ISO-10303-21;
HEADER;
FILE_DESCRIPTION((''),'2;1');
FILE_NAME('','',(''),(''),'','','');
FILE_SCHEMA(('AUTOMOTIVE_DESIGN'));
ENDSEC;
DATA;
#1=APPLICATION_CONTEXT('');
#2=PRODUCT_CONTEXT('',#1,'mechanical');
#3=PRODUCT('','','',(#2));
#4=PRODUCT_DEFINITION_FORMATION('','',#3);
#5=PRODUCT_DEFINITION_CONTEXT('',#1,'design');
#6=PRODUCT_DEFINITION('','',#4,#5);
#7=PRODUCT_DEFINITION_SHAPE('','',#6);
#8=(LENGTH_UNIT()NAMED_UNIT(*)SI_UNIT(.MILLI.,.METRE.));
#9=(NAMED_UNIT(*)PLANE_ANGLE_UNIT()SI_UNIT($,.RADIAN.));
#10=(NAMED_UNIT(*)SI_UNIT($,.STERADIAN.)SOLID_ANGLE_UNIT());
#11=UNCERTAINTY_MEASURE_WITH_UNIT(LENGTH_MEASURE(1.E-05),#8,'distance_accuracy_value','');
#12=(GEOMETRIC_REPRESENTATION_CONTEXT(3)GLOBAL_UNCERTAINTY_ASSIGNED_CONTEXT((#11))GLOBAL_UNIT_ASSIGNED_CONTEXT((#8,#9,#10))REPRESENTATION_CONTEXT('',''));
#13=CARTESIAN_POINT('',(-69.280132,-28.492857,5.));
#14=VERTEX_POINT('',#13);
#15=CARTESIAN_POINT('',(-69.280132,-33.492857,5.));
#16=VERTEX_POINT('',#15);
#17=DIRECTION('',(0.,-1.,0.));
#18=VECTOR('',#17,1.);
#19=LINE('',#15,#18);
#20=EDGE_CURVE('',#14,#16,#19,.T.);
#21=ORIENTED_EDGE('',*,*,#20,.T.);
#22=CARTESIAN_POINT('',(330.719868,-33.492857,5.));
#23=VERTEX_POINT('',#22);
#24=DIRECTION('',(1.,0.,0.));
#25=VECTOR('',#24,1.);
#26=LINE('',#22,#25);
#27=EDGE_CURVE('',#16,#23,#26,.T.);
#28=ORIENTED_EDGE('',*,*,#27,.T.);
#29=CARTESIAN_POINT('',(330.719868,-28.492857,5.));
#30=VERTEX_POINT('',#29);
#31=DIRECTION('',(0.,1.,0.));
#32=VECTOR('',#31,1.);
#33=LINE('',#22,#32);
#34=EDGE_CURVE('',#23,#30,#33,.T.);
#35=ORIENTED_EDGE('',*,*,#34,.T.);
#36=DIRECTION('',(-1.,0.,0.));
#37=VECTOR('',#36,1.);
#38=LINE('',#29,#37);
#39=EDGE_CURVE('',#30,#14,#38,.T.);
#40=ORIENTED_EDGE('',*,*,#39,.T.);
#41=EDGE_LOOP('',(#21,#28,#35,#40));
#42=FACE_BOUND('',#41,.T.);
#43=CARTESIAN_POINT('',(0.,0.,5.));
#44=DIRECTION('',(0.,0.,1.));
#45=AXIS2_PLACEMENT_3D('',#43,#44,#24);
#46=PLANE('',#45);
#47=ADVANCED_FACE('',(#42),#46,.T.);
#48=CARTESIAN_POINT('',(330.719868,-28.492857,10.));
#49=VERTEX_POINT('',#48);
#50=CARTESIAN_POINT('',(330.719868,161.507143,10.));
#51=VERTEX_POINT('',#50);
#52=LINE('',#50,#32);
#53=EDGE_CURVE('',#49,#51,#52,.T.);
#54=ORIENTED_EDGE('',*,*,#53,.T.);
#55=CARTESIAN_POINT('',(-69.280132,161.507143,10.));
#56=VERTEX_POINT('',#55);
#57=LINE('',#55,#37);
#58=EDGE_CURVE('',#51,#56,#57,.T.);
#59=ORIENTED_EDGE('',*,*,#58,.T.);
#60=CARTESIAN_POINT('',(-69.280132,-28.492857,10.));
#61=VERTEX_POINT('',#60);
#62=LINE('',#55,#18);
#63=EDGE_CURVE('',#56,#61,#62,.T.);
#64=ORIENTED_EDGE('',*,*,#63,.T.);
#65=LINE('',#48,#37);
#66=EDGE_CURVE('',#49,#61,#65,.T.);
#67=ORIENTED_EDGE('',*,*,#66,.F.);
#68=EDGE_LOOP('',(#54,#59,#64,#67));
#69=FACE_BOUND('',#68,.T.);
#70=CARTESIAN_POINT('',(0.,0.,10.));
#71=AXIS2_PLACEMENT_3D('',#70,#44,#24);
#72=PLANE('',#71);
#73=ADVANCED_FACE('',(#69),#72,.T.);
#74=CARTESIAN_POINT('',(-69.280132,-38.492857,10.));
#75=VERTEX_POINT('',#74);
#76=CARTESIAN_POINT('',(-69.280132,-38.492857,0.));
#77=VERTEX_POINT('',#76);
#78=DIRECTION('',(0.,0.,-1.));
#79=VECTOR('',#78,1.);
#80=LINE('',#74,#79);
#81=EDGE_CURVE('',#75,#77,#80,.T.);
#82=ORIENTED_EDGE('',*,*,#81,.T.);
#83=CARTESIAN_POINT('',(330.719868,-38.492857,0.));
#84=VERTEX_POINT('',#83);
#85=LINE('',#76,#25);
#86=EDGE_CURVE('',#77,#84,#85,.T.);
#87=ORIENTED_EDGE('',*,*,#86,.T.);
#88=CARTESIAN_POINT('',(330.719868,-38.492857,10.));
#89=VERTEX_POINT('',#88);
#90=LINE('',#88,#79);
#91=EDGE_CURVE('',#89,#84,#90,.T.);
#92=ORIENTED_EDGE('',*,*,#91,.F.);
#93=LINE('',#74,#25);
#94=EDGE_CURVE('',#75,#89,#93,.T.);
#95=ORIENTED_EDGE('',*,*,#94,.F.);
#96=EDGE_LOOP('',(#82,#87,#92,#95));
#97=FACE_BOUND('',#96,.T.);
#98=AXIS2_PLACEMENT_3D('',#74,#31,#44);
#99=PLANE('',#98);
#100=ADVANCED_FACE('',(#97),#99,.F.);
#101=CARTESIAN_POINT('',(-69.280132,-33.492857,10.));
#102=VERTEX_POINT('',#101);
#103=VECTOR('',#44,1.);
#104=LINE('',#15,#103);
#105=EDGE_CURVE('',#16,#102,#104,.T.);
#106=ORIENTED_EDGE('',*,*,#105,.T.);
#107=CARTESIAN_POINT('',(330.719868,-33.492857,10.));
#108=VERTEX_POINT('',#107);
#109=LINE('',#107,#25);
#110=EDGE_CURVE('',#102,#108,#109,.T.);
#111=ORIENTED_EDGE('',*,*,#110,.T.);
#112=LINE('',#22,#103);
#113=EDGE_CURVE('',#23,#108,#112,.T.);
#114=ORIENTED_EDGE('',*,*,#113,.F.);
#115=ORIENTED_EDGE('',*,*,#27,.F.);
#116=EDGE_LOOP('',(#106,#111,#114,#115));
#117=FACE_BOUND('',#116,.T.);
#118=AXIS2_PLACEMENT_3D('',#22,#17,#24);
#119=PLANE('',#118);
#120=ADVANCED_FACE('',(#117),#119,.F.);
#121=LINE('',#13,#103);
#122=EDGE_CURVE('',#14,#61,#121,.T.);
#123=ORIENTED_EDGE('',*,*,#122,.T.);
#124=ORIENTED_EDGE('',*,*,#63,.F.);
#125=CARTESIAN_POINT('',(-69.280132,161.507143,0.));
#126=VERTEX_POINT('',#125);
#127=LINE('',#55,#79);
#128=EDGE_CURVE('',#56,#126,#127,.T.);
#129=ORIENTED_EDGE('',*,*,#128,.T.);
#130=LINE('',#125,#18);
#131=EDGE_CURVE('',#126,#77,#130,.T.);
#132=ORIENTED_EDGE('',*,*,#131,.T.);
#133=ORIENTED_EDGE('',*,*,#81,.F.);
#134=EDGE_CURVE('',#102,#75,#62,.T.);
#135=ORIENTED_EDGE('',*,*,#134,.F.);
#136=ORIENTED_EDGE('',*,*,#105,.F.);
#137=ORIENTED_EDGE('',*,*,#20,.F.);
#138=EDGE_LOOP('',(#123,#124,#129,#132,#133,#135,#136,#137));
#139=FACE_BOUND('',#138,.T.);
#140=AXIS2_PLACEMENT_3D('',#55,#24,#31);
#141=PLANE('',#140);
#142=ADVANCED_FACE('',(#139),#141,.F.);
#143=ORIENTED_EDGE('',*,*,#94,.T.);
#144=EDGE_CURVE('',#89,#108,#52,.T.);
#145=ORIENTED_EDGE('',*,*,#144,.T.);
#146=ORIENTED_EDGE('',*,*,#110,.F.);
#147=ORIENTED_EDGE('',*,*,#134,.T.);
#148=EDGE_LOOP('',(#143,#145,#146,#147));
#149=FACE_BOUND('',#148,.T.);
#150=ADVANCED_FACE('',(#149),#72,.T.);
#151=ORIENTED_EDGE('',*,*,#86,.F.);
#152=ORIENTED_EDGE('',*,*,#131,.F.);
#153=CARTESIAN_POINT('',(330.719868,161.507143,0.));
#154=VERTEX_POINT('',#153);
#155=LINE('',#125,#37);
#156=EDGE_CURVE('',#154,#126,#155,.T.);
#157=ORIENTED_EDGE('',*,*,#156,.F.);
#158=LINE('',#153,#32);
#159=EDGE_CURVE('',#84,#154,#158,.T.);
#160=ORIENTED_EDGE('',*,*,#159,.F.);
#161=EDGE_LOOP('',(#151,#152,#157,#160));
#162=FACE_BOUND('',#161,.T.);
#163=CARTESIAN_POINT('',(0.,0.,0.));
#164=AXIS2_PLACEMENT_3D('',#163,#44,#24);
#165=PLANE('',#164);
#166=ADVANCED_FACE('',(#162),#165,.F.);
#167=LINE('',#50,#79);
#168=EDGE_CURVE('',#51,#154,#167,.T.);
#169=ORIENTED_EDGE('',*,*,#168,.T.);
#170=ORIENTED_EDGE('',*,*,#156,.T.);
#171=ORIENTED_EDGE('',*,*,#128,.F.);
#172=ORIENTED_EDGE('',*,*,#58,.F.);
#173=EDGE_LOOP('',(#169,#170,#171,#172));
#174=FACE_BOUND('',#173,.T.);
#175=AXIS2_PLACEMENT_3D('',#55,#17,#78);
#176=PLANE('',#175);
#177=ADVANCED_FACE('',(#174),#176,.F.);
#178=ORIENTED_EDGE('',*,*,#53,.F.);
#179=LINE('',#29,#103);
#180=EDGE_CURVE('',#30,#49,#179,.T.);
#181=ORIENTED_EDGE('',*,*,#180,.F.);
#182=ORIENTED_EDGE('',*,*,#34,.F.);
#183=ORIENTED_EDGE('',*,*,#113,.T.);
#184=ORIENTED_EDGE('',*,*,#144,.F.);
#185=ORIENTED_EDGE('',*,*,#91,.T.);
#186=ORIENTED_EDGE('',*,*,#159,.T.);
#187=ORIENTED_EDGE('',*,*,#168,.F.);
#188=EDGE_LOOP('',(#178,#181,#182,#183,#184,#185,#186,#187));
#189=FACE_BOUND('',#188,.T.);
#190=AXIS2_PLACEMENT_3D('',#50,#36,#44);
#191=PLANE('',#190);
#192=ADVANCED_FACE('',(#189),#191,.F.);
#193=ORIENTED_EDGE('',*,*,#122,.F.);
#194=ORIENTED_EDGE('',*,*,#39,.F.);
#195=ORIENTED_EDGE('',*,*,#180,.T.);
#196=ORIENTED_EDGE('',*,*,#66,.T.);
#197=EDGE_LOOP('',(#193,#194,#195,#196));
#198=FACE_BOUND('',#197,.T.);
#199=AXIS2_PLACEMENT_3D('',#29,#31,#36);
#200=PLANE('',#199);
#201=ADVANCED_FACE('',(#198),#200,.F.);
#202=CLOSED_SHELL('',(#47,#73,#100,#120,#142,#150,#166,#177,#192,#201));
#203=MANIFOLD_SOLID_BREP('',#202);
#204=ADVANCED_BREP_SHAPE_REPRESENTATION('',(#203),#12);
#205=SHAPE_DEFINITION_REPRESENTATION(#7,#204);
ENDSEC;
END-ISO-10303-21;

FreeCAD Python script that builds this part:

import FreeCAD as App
import Part
import Sketcher

V = App.Vector


def add_polygon(sketch, points):
    """Adds a closed chain of lines whose ends are joined by coincident constraints."""
    first, n = sketch.GeometryCount, len(points)
    for a, b in zip(points, points[1:] + points[:1]):
        sketch.addGeometry(Part.LineSegment(App.Vector(*a, 0), App.Vector(*b, 0)), False)
    for i in range(n):
        sketch.addConstraint(Sketcher.Constraint("Coincident", first + i, 2, first + (i + 1) % n, 1))

doc = App.newDocument("Part")
params = doc.addObject("Spreadsheet::Sheet", "Params")
for row, (alias, value) in enumerate([
    ("sketch1_width", "400 mm"),
    ("sketch1_height", "200 mm"),
    ("pad1_length", "10 mm"),
    ("sketch2_width", "400 mm"),
    ("sketch2_height", "5 mm"),
    ("pocket1_length", "5 mm"),
], start=1):
    params.set(f"A{row}", alias)
    params.set(f"B{row}", "=" + value)
    params.setAlias(f"B{row}", alias)

body = doc.addObject("PartDesign::Body", "Body")

# Sketch on XY plane
sketch1 = body.newObject("Sketcher::SketchObject", "Sketch")
sketch1.AttachmentSupport = (doc.getObject("XY_Plane"), [""])
sketch1.MapMode = "FlatFace"
add_polygon(sketch1, [(-69, 162), (-69, -38), (331, -38), (331, 162)])  # lines 0-3
sketch1.addConstraint(Sketcher.Constraint("Vertical", 0))
sketch1.addConstraint(Sketcher.Constraint("Horizontal", 1))
sketch1.addConstraint(Sketcher.Constraint("Vertical", 2))
sketch1.addConstraint(Sketcher.Constraint("Horizontal", 3))
sketch1.addConstraint(Sketcher.Constraint("DistanceX", 1, 1, 1, 2, 400.0))
sketch1.addConstraint(Sketcher.Constraint("DistanceY", 0, 2, 0, 1, 200.0))
sketch1.addConstraint(Sketcher.Constraint("DistanceX", 0, 2, -1, 1, 69.280132))
sketch1.addConstraint(Sketcher.Constraint("DistanceY", 0, 2, -1, 1, 38.492857))
sketch1.setExpression("Constraints[8]", "Params.sketch1_width")
sketch1.setExpression("Constraints[9]", "Params.sketch1_height")
pad1 = body.newObject("PartDesign::Pad", "Pad")
pad1.Profile = sketch1
pad1.setExpression("Length", "Params.pad1_length")

# Sketch on XY plane
sketch2 = body.newObject("Sketcher::SketchObject", "Sketch001")
sketch2.AttachmentSupport = (doc.getObject("XY_Plane"), [""])
sketch2.MapMode = "FlatFace"
sketch2.AttachmentOffset = App.Placement(V(0, 0, 10), App.Rotation())
add_polygon(sketch2, [(-69, -28), (-69, -33), (331, -33), (331, -28)])  # lines 0-3
sketch2.addConstraint(Sketcher.Constraint("Vertical", 0))
sketch2.addConstraint(Sketcher.Constraint("Horizontal", 1))
sketch2.addConstraint(Sketcher.Constraint("Vertical", 2))
sketch2.addConstraint(Sketcher.Constraint("Horizontal", 3))
sketch2.addConstraint(Sketcher.Constraint("DistanceX", 1, 1, 1, 2, 400.0))
sketch2.addConstraint(Sketcher.Constraint("DistanceY", 0, 2, 0, 1, 5.0))
sketch2.addConstraint(Sketcher.Constraint("DistanceX", 0, 2, -1, 1, 69.280132))
sketch2.addConstraint(Sketcher.Constraint("DistanceY", 0, 2, -1, 1, 33.492857))
sketch2.setExpression("Constraints[8]", "Params.sketch2_width")
sketch2.setExpression("Constraints[9]", "Params.sketch2_height")
pocket1 = body.newObject("PartDesign::Pocket", "Pocket")
pocket1.Profile = sketch2
pocket1.setExpression("Length", "Params.pocket1_length")

doc.recompute()
